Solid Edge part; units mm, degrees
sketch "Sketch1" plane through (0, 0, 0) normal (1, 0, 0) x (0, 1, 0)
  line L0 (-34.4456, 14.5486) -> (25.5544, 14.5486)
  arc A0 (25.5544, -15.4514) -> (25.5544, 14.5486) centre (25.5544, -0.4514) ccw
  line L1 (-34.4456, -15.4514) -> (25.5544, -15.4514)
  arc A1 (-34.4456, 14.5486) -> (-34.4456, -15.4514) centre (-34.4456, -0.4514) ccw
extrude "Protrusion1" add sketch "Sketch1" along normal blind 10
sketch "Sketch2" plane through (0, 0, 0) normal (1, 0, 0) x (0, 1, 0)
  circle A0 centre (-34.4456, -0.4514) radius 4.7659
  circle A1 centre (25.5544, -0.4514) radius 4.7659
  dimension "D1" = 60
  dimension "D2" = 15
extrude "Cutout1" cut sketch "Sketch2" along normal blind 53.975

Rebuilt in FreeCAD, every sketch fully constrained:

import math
import FreeCAD as App
import Part
import Sketcher

V = App.Vector
Q = App.Units.Quantity

doc = App.newDocument("Part")
body = doc.addObject("PartDesign::Body", "Body")

# Sketch on YZ plane
sketch1 = body.newObject("Sketcher::SketchObject", "Sketch")
sketch1.AttachmentSupport = (doc.getObject("YZ_Plane"), [""])
sketch1.MapMode = "FlatFace"
sketch1.addGeometry([
    Part.LineSegment(V(25.5544, 14.5486, 0), V(-34.4456, 14.5486, 0)),
    Part.ArcOfCircle(Part.Circle(V(-34.4456, -0.4514, 0), V(0, 0, 1), 15), math.radians(90), math.radians(270)),
    Part.LineSegment(V(-34.4456, -15.4514, 0), V(25.5544, -15.4514, 0)),
    Part.ArcOfCircle(Part.Circle(V(25.5544, -0.4514, 0), V(0, 0, 1), 15), math.radians(-90), math.radians(90)),
], False)
sketch1.addConstraint([
    Sketcher.Constraint("Tangent", 0, 2, 1, 1),
    Sketcher.Constraint("Tangent", 1, 2, 2, 1),
    Sketcher.Constraint("Tangent", 2, 2, 3, 1),
    Sketcher.Constraint("Tangent", 3, 2, 0, 1),
    Sketcher.Constraint("Horizontal", 0),
    Sketcher.Constraint("Horizontal", 2),
    Sketcher.Constraint("Radius", 1, 15.0),
    Sketcher.Constraint("DistanceX", 0, 2, 0, 1, Q("2.3622 in")),
    Sketcher.Constraint("DistanceX", 1, 3, -1, 1, 34.4456),
    Sketcher.Constraint("DistanceY", 1, 3, -1, 1, 0.4514),
])
pad1 = body.newObject("PartDesign::Pad", "Pad")
pad1.Profile = sketch1
pad1.Length = Q("0.3937008 in")

# Sketch on YZ plane
sketch2 = body.newObject("Sketcher::SketchObject", "Sketch001")
sketch2.AttachmentSupport = (doc.getObject("YZ_Plane"), [""])
sketch2.MapMode = "FlatFace"
sketch2.addGeometry([
    Part.Circle(V(-34.4456, -0.4514, 0), V(0, 0, 1), 4.7659),
    Part.Circle(V(25.5544, -0.4514, 0), V(0, 0, 1), 4.7659),
], False)
sketch2.addConstraint([
    Sketcher.Constraint("Equal", 0, 1),
    Sketcher.Constraint("Horizontal", 0, 3, 1, 3),
    Sketcher.Constraint("Diameter", 0, 9.5318),
    Sketcher.Constraint("DistanceX", 0, 3, 1, 3, Q("2.3622 in")),
    Sketcher.Constraint("DistanceX", 0, 3, -1, 1, 34.4456),
    Sketcher.Constraint("DistanceY", 0, 3, -1, 1, 0.4514),
])
pocket1 = body.newObject("PartDesign::Pocket", "Pocket")
pocket1.Profile = sketch2
pocket1.Length = Q("2.125 in")
pocket1.Reversed = True

doc.recompute()
